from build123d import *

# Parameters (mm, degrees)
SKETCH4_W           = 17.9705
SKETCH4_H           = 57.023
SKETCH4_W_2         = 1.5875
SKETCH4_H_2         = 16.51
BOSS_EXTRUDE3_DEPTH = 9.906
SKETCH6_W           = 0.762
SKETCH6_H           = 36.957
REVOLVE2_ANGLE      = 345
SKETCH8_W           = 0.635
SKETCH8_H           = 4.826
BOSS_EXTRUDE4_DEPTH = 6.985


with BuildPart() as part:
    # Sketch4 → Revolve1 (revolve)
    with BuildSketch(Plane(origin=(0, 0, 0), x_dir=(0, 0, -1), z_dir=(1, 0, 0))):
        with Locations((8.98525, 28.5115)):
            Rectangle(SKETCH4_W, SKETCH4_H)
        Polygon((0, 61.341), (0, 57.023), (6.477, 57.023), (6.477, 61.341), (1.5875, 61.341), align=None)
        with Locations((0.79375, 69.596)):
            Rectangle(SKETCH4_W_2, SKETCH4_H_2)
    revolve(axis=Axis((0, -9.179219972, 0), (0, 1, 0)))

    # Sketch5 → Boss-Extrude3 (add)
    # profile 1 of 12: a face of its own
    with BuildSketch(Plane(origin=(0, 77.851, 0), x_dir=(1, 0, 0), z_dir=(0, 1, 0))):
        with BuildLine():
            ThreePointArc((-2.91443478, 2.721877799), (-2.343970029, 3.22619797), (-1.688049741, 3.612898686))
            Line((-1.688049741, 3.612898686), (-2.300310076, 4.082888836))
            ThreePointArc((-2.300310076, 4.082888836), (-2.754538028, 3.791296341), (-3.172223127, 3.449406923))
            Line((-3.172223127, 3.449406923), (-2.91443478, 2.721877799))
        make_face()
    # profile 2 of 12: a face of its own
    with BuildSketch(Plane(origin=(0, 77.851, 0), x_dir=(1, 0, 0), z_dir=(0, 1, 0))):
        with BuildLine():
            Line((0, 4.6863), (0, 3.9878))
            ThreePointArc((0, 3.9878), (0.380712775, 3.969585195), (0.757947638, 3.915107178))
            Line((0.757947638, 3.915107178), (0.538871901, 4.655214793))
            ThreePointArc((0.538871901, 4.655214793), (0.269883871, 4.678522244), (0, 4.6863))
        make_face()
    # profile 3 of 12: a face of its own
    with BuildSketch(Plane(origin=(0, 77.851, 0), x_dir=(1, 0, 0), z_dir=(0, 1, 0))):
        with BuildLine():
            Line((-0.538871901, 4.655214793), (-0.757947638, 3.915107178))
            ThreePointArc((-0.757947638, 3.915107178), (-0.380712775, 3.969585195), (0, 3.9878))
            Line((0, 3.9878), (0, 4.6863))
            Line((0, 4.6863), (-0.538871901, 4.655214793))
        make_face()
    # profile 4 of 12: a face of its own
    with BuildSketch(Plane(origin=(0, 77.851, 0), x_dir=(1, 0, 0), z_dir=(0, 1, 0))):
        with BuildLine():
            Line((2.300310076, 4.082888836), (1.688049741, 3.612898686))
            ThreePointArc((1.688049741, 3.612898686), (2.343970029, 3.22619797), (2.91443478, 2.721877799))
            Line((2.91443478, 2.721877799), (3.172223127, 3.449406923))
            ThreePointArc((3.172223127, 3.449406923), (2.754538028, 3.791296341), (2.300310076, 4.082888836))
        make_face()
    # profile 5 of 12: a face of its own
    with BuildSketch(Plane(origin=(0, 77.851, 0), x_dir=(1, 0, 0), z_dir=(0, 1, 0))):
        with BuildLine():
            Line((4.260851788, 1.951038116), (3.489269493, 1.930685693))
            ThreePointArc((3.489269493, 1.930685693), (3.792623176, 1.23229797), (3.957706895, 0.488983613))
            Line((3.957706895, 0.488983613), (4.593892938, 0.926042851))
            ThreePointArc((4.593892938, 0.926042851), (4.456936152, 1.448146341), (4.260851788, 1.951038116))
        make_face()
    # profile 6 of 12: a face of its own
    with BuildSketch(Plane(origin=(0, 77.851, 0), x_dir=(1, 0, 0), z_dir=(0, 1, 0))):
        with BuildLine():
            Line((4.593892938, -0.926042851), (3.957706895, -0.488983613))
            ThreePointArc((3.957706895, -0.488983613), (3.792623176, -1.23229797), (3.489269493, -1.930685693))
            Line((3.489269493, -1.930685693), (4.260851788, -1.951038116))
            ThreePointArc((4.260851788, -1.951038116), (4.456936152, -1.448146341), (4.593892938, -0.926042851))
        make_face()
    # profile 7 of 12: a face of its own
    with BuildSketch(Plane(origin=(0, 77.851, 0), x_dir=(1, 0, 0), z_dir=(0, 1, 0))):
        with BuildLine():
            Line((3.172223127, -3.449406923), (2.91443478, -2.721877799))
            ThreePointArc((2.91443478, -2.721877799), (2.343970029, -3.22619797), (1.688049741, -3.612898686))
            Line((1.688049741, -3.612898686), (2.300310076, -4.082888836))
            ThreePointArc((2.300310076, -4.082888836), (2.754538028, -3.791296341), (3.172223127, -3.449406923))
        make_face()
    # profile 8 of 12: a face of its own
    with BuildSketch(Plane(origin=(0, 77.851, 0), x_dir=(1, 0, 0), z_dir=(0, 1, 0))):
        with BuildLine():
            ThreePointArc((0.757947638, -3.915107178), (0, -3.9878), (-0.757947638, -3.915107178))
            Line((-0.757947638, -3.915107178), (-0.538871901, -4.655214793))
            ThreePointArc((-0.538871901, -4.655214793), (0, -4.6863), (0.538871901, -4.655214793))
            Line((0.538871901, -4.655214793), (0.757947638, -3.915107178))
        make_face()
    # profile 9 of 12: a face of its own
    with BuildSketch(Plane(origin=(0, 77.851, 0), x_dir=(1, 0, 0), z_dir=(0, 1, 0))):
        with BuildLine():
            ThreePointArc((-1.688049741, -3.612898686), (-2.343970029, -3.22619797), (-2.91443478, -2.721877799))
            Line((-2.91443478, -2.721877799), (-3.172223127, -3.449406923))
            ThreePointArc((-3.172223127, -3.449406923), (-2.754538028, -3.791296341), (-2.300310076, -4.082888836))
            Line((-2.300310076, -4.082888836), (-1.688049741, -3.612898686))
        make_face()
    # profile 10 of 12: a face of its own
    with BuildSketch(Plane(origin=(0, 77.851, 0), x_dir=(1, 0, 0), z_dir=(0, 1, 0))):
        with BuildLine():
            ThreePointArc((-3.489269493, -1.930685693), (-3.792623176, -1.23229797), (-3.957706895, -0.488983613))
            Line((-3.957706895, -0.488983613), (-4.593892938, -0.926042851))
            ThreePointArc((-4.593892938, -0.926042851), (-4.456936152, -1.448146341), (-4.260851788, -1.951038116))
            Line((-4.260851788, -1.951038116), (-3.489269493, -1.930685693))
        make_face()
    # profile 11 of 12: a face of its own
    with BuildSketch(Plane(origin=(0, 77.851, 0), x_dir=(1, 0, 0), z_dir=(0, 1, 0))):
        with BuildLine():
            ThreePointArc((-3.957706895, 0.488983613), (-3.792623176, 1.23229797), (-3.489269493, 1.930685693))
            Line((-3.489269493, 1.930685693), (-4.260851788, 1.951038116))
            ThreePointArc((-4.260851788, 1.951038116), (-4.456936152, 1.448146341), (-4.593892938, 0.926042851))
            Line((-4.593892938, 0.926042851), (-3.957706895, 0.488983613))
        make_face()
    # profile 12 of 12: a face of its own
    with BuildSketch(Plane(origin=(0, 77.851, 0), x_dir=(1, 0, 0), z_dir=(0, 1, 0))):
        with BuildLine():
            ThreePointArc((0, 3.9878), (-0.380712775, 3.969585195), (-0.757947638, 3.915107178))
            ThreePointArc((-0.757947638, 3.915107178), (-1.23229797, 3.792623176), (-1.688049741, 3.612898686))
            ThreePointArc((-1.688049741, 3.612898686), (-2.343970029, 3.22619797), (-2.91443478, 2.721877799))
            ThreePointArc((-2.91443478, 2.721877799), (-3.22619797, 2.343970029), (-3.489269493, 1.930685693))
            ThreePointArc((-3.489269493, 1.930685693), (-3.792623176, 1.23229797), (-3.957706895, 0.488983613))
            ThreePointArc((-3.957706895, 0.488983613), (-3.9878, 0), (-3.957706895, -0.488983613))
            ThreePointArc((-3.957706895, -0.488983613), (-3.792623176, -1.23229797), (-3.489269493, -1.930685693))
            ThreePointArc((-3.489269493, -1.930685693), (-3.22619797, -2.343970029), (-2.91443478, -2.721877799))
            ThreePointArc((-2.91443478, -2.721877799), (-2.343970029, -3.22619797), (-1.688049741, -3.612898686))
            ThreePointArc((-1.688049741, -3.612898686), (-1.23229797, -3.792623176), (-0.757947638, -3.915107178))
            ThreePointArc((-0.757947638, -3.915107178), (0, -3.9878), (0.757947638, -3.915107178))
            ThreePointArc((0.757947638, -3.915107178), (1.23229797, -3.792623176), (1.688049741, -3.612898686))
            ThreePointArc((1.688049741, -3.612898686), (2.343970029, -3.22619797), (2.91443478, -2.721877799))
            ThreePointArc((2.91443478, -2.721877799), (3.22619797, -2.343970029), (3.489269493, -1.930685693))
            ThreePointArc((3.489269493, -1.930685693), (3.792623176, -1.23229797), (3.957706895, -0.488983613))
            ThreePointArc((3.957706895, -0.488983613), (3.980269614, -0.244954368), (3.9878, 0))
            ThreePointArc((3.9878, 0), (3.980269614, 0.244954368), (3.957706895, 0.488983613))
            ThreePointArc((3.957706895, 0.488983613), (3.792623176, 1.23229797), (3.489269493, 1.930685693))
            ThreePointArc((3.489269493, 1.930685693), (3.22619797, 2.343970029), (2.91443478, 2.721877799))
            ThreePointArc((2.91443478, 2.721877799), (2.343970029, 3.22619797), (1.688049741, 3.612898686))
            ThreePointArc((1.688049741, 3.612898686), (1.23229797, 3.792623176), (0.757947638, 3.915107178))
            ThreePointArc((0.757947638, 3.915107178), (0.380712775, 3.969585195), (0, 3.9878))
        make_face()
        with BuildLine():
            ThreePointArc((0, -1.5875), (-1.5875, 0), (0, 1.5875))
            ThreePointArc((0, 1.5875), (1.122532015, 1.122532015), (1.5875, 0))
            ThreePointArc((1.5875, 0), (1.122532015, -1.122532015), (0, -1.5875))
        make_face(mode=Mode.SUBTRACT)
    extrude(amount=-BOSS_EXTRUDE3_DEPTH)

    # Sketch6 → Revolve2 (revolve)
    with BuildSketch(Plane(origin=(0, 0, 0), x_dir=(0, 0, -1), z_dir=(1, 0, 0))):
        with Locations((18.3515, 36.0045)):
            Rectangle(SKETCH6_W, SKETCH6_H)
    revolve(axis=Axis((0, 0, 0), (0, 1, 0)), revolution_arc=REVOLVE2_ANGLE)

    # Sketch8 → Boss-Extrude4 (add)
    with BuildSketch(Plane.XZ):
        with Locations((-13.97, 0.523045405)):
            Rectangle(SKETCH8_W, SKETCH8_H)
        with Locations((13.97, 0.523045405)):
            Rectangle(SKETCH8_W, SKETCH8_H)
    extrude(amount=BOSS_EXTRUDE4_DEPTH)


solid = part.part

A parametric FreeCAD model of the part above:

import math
import FreeCAD as App
import Part
import Sketcher
from FreeCAD import Vector
Q = App.Units.Quantity

doc = App.newDocument("Part")
body = doc.addObject("PartDesign::Body", "Body")

# Sketch on YZ plane
sketch1 = doc.addObject("Sketcher::SketchObject", "Sketch")
body.addObject(sketch1)
sketch1.AttachmentSupport = (doc.YZ_Plane, [""])
sketch1.MapMode = "FlatFace"
sketch1.addGeometry([
    Part.LineSegment(Vector(0, 0, 0), Vector(0, -18, 0)),  # 0
    Part.LineSegment(Vector(0, -18, 0), Vector(57, -18, 0)),  # 1
    Part.LineSegment(Vector(57, -18, 0), Vector(57, -6.5, 0)),  # 2
    Part.LineSegment(Vector(57, -6.5, 0), Vector(61.3, -6.5, 0)),  # 3
    Part.LineSegment(Vector(61.3, -6.5, 0), Vector(61.3, -1.6, 0)),  # 4
    Part.LineSegment(Vector(61.3, -1.6, 0), Vector(77.9, -1.6, 0)),  # 5
    Part.LineSegment(Vector(77.9, -1.6, 0), Vector(77.9, 0, 0)),  # 6
    Part.LineSegment(Vector(77.9, 0, 0), Vector(0, 0, 0)),  # 7
], False)
sketch1.addConstraint([
    Sketcher.Constraint("Coincident", 0, 2, 1, 1),
    Sketcher.Constraint("Coincident", 1, 2, 2, 1),
    Sketcher.Constraint("Coincident", 2, 2, 3, 1),
    Sketcher.Constraint("Coincident", 3, 2, 4, 1),
    Sketcher.Constraint("Coincident", 4, 2, 5, 1),
    Sketcher.Constraint("Coincident", 5, 2, 6, 1),
    Sketcher.Constraint("Coincident", 6, 2, 7, 1),
    Sketcher.Constraint("Coincident", 7, 2, 0, 1),
    Sketcher.Constraint("Vertical", 0),
    Sketcher.Constraint("Horizontal", 1),
    Sketcher.Constraint("Vertical", 2),
    Sketcher.Constraint("Horizontal", 3),
    Sketcher.Constraint("Vertical", 4),
    Sketcher.Constraint("Horizontal", 5),
    Sketcher.Constraint("Vertical", 6),
    Sketcher.Constraint("Horizontal", 7),
    Sketcher.Constraint("Coincident", 7, 2, -1, 1),
    Sketcher.Constraint("DistanceX", 3, 1, 3, 2, Q("0.17 in")),
    Sketcher.Constraint("DistanceX", 5, 1, 5, 2, Q("0.65 in")),
    Sketcher.Constraint("DistanceX", 1, 1, 1, 2, Q("2.245 in")),
    Sketcher.Constraint("DistanceY", 6, 1, 6, 2, Q("0.0625 in")),
    Sketcher.Constraint("DistanceY", 0, 2, 0, 1, Q("0.7075 in")),
    Sketcher.Constraint("DistanceY", 2, 1, 2, 2, Q("0.4525 in")),
])
revolution = doc.addObject("PartDesign::Revolution", "Revolution")
body.addObject(revolution)
revolution.Profile = sketch1
revolution.ReferenceAxis = (sketch1, ["H_Axis"])
revolution.Angle = 360

# Sketch on XZ plane
sketch2 = doc.addObject("Sketcher::SketchObject", "Sketch001")
body.addObject(sketch2)
sketch2.AttachmentSupport = (doc.XZ_Plane, [""])
sketch2.MapMode = "FlatFace"
sketch2.AttachmentOffset = App.Placement(Vector(0, 0, -3.065 * 25.4), App.Rotation())
sketch2.addGeometry([
    Part.LineSegment(Vector(-1.69, -3.61, 0), Vector(-2.3, -4.08, 0)),  # 0
    Part.ArcOfCircle(Part.Circle(Vector(0, 0, 0), Vector(0, 0, 1), 4.69), math.radians(-132.6), math.radians(-119.4)),  # 1
    Part.LineSegment(Vector(-3.17, -3.45, 0), Vector(-2.91, -2.72, 0)),  # 2
    Part.ArcOfCircle(Part.Circle(Vector(0, 0, 0), Vector(0, 0, 1), 3.99), math.radians(-151.04), math.radians(-136.96)),  # 3
    Part.LineSegment(Vector(-3.49, -1.93, 0), Vector(-4.26, -1.95, 0)),  # 4
    Part.ArcOfCircle(Part.Circle(Vector(0, 0, 0), Vector(0, 0, 1), 4.69), math.radians(-168.6), math.radians(-155.4)),  # 5
    Part.LineSegment(Vector(-4.59, -0.93, 0), Vector(-3.96, -0.49, 0)),  # 6
    Part.ArcOfCircle(Part.Circle(Vector(0, 0, 0), Vector(0, 0, 1), 3.99), math.radians(172.96), math.radians(187.04)),  # 7
    Part.LineSegment(Vector(-3.96, 0.49, 0), Vector(-4.59, 0.93, 0)),  # 8
    Part.ArcOfCircle(Part.Circle(Vector(0, 0, 0), Vector(0, 0, 1), 4.69), math.radians(155.4), math.radians(168.6)),  # 9
    Part.LineSegment(Vector(-4.26, 1.95, 0), Vector(-3.49, 1.93, 0)),  # 10
    Part.ArcOfCircle(Part.Circle(Vector(0, 0, 0), Vector(0, 0, 1), 3.99), math.radians(136.96), math.radians(151.04)),  # 11
    Part.LineSegment(Vector(-2.91, 2.72, 0), Vector(-3.17, 3.45, 0)),  # 12
    Part.ArcOfCircle(Part.Circle(Vector(0, 0, 0), Vector(0, 0, 1), 4.69), math.radians(119.4), math.radians(132.6)),  # 13
    Part.LineSegment(Vector(-2.3, 4.08, 0), Vector(-1.69, 3.61, 0)),  # 14
    Part.ArcOfCircle(Part.Circle(Vector(0, 0, 0), Vector(0, 0, 1), 3.99), math.radians(100.96), math.radians(115.04)),  # 15
    Part.LineSegment(Vector(-0.76, 3.92, 0), Vector(-0.54, 4.66, 0)),  # 16
    Part.ArcOfCircle(Part.Circle(Vector(0, 0, 0), Vector(0, 0, 1), 4.69), math.radians(83.4), math.radians(96.6)),  # 17
    Part.LineSegment(Vector(0.54, 4.66, 0), Vector(0.76, 3.92, 0)),  # 18
    Part.ArcOfCircle(Part.Circle(Vector(0, 0, 0), Vector(0, 0, 1), 3.99), math.radians(64.96), math.radians(79.04)),  # 19
    Part.LineSegment(Vector(1.69, 3.61, 0), Vector(2.3, 4.08, 0)),  # 20
    Part.ArcOfCircle(Part.Circle(Vector(0, 0, 0), Vector(0, 0, 1), 4.69), math.radians(47.4), math.radians(60.6)),  # 21
    Part.LineSegment(Vector(3.17, 3.45, 0), Vector(2.91, 2.72, 0)),  # 22
    Part.ArcOfCircle(Part.Circle(Vector(0, 0, 0), Vector(0, 0, 1), 3.99), math.radians(28.96), math.radians(43.04)),  # 23
    Part.LineSegment(Vector(3.49, 1.93, 0), Vector(4.26, 1.95, 0)),  # 24
    Part.ArcOfCircle(Part.Circle(Vector(0, 0, 0), Vector(0, 0, 1), 4.69), math.radians(11.4), math.radians(24.6)),  # 25
    Part.LineSegment(Vector(4.59, 0.93, 0), Vector(3.96, 0.49, 0)),  # 26
    Part.ArcOfCircle(Part.Circle(Vector(0, 0, 0), Vector(0, 0, 1), 3.99), math.radians(0), math.radians(7.04)),  # 27
    Part.ArcOfCircle(Part.Circle(Vector(0, 0, 0), Vector(0, 0, 1), 3.99), math.radians(-7.04), math.radians(0)),  # 28
    Part.LineSegment(Vector(3.96, -0.49, 0), Vector(4.59, -0.93, 0)),  # 29
    Part.ArcOfCircle(Part.Circle(Vector(0, 0, 0), Vector(0, 0, 1), 4.69), math.radians(-24.6), math.radians(-11.4)),  # 30
    Part.LineSegment(Vector(4.26, -1.95, 0), Vector(3.49, -1.93, 0)),  # 31
    Part.ArcOfCircle(Part.Circle(Vector(0, 0, 0), Vector(0, 0, 1), 3.99), math.radians(-43.04), math.radians(-28.96)),  # 32
    Part.LineSegment(Vector(2.91, -2.72, 0), Vector(3.17, -3.45, 0)),  # 33
    Part.ArcOfCircle(Part.Circle(Vector(0, 0, 0), Vector(0, 0, 1), 4.69), math.radians(-60.6), math.radians(-47.4)),  # 34
    Part.LineSegment(Vector(2.3, -4.08, 0), Vector(1.69, -3.61, 0)),  # 35
    Part.ArcOfCircle(Part.Circle(Vector(0, 0, 0), Vector(0, 0, 1), 3.99), math.radians(-79.04), math.radians(-64.96)),  # 36
    Part.LineSegment(Vector(0.76, -3.92, 0), Vector(0.54, -4.66, 0)),  # 37
    Part.ArcOfCircle(Part.Circle(Vector(0, 0, 0), Vector(0, 0, 1), 4.69), math.radians(-90), math.radians(-83.4)),  # 38
    Part.LineSegment(Vector(0, -4.69, 0), Vector(-0.54, -4.66, 0)),  # 39
    Part.LineSegment(Vector(-0.54, -4.66, 0), Vector(-0.76, -3.92, 0)),  # 40
    Part.ArcOfCircle(Part.Circle(Vector(0, 0, 0), Vector(0, 0, 1), 3.99), math.radians(-115.04), math.radians(-100.96)),  # 41
    Part.ArcOfCircle(Part.Circle(Vector(0, 0, 0), Vector(0, 0, 1), 1.59), math.radians(90), math.radians(270)),  # 42
    Part.ArcOfCircle(Part.Circle(Vector(0, 0, 0), Vector(0, 0, 1), 1.59), math.radians(-90), math.radians(0)),  # 43
    Part.ArcOfCircle(Part.Circle(Vector(0, 0, 0), Vector(0, 0, 1), 1.59), math.radians(0), math.radians(90)),  # 44
], False)
sketch2.addConstraint([
    Sketcher.Constraint("Coincident", 0, 2, 1, 2),
    Sketcher.Constraint("Coincident", 1, 1, 2, 1),
    Sketcher.Constraint("Coincident", 2, 2, 3, 2),
    Sketcher.Constraint("Coincident", 3, 1, 4, 1),
    Sketcher.Constraint("Coincident", 4, 2, 5, 2),
    Sketcher.Constraint("Coincident", 5, 1, 6, 1),
    Sketcher.Constraint("Coincident", 6, 2, 7, 2),
    Sketcher.Constraint("Coincident", 7, 1, 8, 1),
    Sketcher.Constraint("Coincident", 8, 2, 9, 2),
    Sketcher.Constraint("Coincident", 9, 1, 10, 1),
    Sketcher.Constraint("Coincident", 10, 2, 11, 2),
    Sketcher.Constraint("Coincident", 11, 1, 12, 1),
    Sketcher.Constraint("Coincident", 12, 2, 13, 2),
    Sketcher.Constraint("Coincident", 13, 1, 14, 1),
    Sketcher.Constraint("Coincident", 14, 2, 15, 2),
    Sketcher.Constraint("Coincident", 15, 1, 16, 1),
    Sketcher.Constraint("Coincident", 16, 2, 17, 2),
    Sketcher.Constraint("Coincident", 17, 1, 18, 1),
    Sketcher.Constraint("Coincident", 18, 2, 19, 2),
    Sketcher.Constraint("Coincident", 19, 1, 20, 1),
    Sketcher.Constraint("Coincident", 20, 2, 21, 2),
    Sketcher.Constraint("Coincident", 21, 1, 22, 1),
    Sketcher.Constraint("Coincident", 22, 2, 23, 2),
    Sketcher.Constraint("Coincident", 23, 1, 24, 1),
    Sketcher.Constraint("Coincident", 24, 2, 25, 2),
    Sketcher.Constraint("Coincident", 25, 1, 26, 1),
    Sketcher.Constraint("Coincident", 26, 2, 27, 2),
    Sketcher.Constraint("Tangent", 27, 1, 28, 2),
    Sketcher.Constraint("Coincident", 28, 1, 29, 1),
    Sketcher.Constraint("Coincident", 29, 2, 30, 2),
    Sketcher.Constraint("Coincident", 30, 1, 31, 1),
    Sketcher.Constraint("Coincident", 31, 2, 32, 2),
    Sketcher.Constraint("Coincident", 32, 1, 33, 1),
    Sketcher.Constraint("Coincident", 33, 2, 34, 2),
    Sketcher.Constraint("Coincident", 34, 1, 35, 1),
    Sketcher.Constraint("Coincident", 35, 2, 36, 2),
    Sketcher.Constraint("Coincident", 36, 1, 37, 1),
    Sketcher.Constraint("Coincident", 37, 2, 38, 2),
    Sketcher.Constraint("Coincident", 38, 1, 39, 1),
    Sketcher.Constraint("Coincident", 39, 2, 40, 1),
    Sketcher.Constraint("Coincident", 40, 2, 41, 2),
    Sketcher.Constraint("Coincident", 41, 1, 0, 1),
    Sketcher.Constraint("Tangent", 42, 2, 43, 1),
    Sketcher.Constraint("Tangent", 43, 2, 44, 1),
    Sketcher.Constraint("Tangent", 44, 2, 42, 1),
    Sketcher.Constraint("Coincident", 1, 3, -1, 1),
    Sketcher.Constraint("Coincident", 3, 3, -1, 1),
    Sketcher.Constraint("Coincident", 5, 3, -1, 1),
    Sketcher.Constraint("Coincident", 7, 3, -1, 1),
    Sketcher.Constraint("Coincident", 9, 3, -1, 1),
    Sketcher.Constraint("Coincident", 11, 3, -1, 1),
    Sketcher.Constraint("Coincident", 13, 3, -1, 1),
    Sketcher.Constraint("Coincident", 15, 3, -1, 1),
    Sketcher.Constraint("Coincident", 17, 3, -1, 1),
    Sketcher.Constraint("Coincident", 19, 3, -1, 1),
    Sketcher.Constraint("Coincident", 21, 3, -1, 1),
    Sketcher.Constraint("Coincident", 23, 3, -1, 1),
    Sketcher.Constraint("Coincident", 25, 3, -1, 1),
    Sketcher.Constraint("Coincident", 27, 3, -1, 1),
    Sketcher.Constraint("Coincident", 30, 3, -1, 1),
    Sketcher.Constraint("Coincident", 32, 3, -1, 1),
    Sketcher.Constraint("Coincident", 34, 3, -1, 1),
    Sketcher.Constraint("Coincident", 36, 3, -1, 1),
    Sketcher.Constraint("Coincident", 38, 3, -1, 1),
    Sketcher.Constraint("Coincident", 41, 3, -1, 1),
    Sketcher.Constraint("Coincident", 42, 3, -1, 1),
    Sketcher.Constraint("Equal", 1, 5),
    Sketcher.Constraint("Equal", 3, 7),
    Sketcher.Constraint("Equal", 5, 9),
    Sketcher.Constraint("Equal", 7, 11),
    Sketcher.Constraint("Equal", 9, 13),
    Sketcher.Constraint("Equal", 11, 15),
    Sketcher.Constraint("Equal", 13, 17),
    Sketcher.Constraint("Equal", 15, 19),
    Sketcher.Constraint("Equal", 17, 21),
    Sketcher.Constraint("Equal", 19, 23),
    Sketcher.Constraint("Equal", 21, 25),
    Sketcher.Constraint("Equal", 23, 27),
    Sketcher.Constraint("Equal", 27, 28),
    Sketcher.Constraint("Equal", 25, 30),
    Sketcher.Constraint("Equal", 28, 32),
    Sketcher.Constraint("Equal", 30, 34),
    Sketcher.Constraint("Equal", 32, 36),
    Sketcher.Constraint("Equal", 34, 38),
    Sketcher.Constraint("Equal", 36, 41),
    Sketcher.Constraint("Symmetric", 17, 1, 39, 2, -1, 1),
    Sketcher.Constraint("PointOnObject", 27, 1, -1),
    Sketcher.Constraint("PointOnObject", 38, 1, -2),
    Sketcher.Constraint("PointOnObject", 42, 2, -2),
    Sketcher.Constraint("PointOnObject", 43, 2, -1),
    Sketcher.Constraint("PointOnObject", 44, 2, -2),
    Sketcher.Constraint("Parallel", 0, 20),
    Sketcher.Constraint("Parallel", 2, 22),
    Sketcher.Constraint("Parallel", 4, 24),
    Sketcher.Constraint("Parallel", 6, 26),
    Sketcher.Constraint("Parallel", 8, 29),
    Sketcher.Constraint("Parallel", 10, 31),
    Sketcher.Constraint("Parallel", 12, 33),
    Sketcher.Constraint("Parallel", 14, 35),
    Sketcher.Constraint("Parallel", 16, 37),
    Sketcher.Constraint("Parallel", 18, 40),
    Sketcher.Constraint("Horizontal", 16, 2, 17, 1),
    Sketcher.Constraint("Horizontal", 15, 1, 18, 2),
    Sketcher.Constraint("Horizontal", 14, 2, 19, 1),
    Sketcher.Constraint("Horizontal", 13, 1, 20, 2),
    Sketcher.Constraint("Horizontal", 12, 2, 21, 1),
    Sketcher.Constraint("Horizontal", 11, 1, 22, 2),
    Sketcher.Constraint("Horizontal", 10, 2, 23, 1),
    Sketcher.Constraint("Horizontal", 9, 1, 24, 2),
    Sketcher.Constraint("Horizontal", 8, 2, 25, 1),
    Sketcher.Constraint("Horizontal", 7, 1, 26, 2),
    Sketcher.Constraint("Horizontal", 6, 2, 28, 1),
    Sketcher.Constraint("Horizontal", 4, 2, 30, 1),
    Sketcher.Constraint("Horizontal", 2, 2, 32, 1),
    Sketcher.Constraint("Horizontal", 0, 2, 34, 1),
    Sketcher.Constraint("Horizontal", 37, 2, 39, 2),
    Sketcher.Constraint("Vertical", 6, 2, 7, 1),
    Sketcher.Constraint("Vertical", 4, 2, 9, 1),
    Sketcher.Constraint("Vertical", 2, 2, 11, 1),
    Sketcher.Constraint("Vertical", 0, 2, 13, 1),
    Sketcher.Constraint("Equal", 0, 2),
    Sketcher.Constraint("Equal", 2, 4),
    Sketcher.Constraint("Equal", 4, 6),
    Sketcher.Constraint("Equal", 14, 16),
    Sketcher.Constraint("Radius", 3, Q("0.157 in")),
    Sketcher.Constraint("Radius", 42, Q("0.0625 in")),
    Sketcher.Constraint("Radius", 1, Q("0.1845 in")),
    Sketcher.Constraint("DistanceY", -1, 1, 14, 2, 3.612899),
    Sketcher.Constraint("Distance", 0, 0.771851),
    Sketcher.Constraint("DistanceX", 3, 1, -1, 1, 3.489269),
    Sketcher.Constraint("DistanceX", 16, 2, -1, 1, 0.538872),
    Sketcher.Constraint("DistanceX", 1, 1, -1, 1, 3.172223),
    Sketcher.Constraint("DistanceX", 5, 1, -1, 1, 4.593893),
])
pad1 = doc.addObject("PartDesign::Pad", "Pad")
body.addObject(pad1)
pad1.Profile = sketch2
pad1.Length = Q("0.39 in")

# Sketch on YZ plane
sketch3 = doc.addObject("Sketcher::SketchObject", "Sketch002")
body.addObject(sketch3)
sketch3.AttachmentSupport = (doc.YZ_Plane, [""])
sketch3.MapMode = "FlatFace"
sketch3.addGeometry([
    Part.LineSegment(Vector(54.5, -18, 0), Vector(17.5, -18, 0)),
    Part.LineSegment(Vector(17.5, -18, 0), Vector(17.5, -18.7, 0)),
    Part.LineSegment(Vector(17.5, -18.7, 0), Vector(54.5, -18.7, 0)),
    Part.LineSegment(Vector(54.5, -18.7, 0), Vector(54.5, -18, 0)),
], False)
sketch3.addConstraint([
    Sketcher.Constraint("Coincident", 0, 2, 1, 1),
    Sketcher.Constraint("Coincident", 1, 2, 2, 1),
    Sketcher.Constraint("Coincident", 2, 2, 3, 1),
    Sketcher.Constraint("Coincident", 3, 2, 0, 1),
    Sketcher.Constraint("Horizontal", 0),
    Sketcher.Constraint("Vertical", 1),
    Sketcher.Constraint("Horizontal", 2),
    Sketcher.Constraint("Vertical", 3),
    Sketcher.Constraint("DistanceY", 1, 2, 1, 1, Q("0.03 in")),
    Sketcher.Constraint("DistanceX", 0, 2, 0, 1, Q("1.455 in")),
    Sketcher.Constraint("DistanceX", -1, 1, 0, 2, Q("0.69 in")),
    Sketcher.Constraint("DistanceY", 0, 2, -1, 1, Q("0.7075 in")),
])
revolution2 = doc.addObject("PartDesign::Revolution", "Revolution001")
body.addObject(revolution2)
revolution2.Profile = sketch3
revolution2.ReferenceAxis = (sketch3, ["H_Axis"])
revolution2.Angle = 345

# Sketch on XZ plane
sketch4 = doc.addObject("Sketcher::SketchObject", "Sketch003")
body.addObject(sketch4)
sketch4.AttachmentSupport = (doc.XZ_Plane, [""])
sketch4.MapMode = "FlatFace"
sketch4.addGeometry([
    Part.LineSegment(Vector(-14.3, 2.9, 0), Vector(-14.3, -1.9, 0)),  # 0
    Part.LineSegment(Vector(-14.3, -1.9, 0), Vector(-13.7, -1.9, 0)),  # 1
    Part.LineSegment(Vector(-13.7, -1.9, 0), Vector(-13.7, 2.9, 0)),  # 2
    Part.LineSegment(Vector(-13.7, 2.9, 0), Vector(-14.3, 2.9, 0)),  # 3
    Part.LineSegment(Vector(13.7, 2.9, 0), Vector(13.7, -1.9, 0)),  # 4
    Part.LineSegment(Vector(13.7, -1.9, 0), Vector(14.3, -1.9, 0)),  # 5
    Part.LineSegment(Vector(14.3, -1.9, 0), Vector(14.3, 2.9, 0)),  # 6
    Part.LineSegment(Vector(14.3, 2.9, 0), Vector(13.7, 2.9, 0)),  # 7
], False)
sketch4.addConstraint([
    Sketcher.Constraint("Coincident", 0, 2, 1, 1),
    Sketcher.Constraint("Coincident", 1, 2, 2, 1),
    Sketcher.Constraint("Coincident", 2, 2, 3, 1),
    Sketcher.Constraint("Coincident", 3, 2, 0, 1),
    Sketcher.Constraint("Coincident", 4, 2, 5, 1),
    Sketcher.Constraint("Coincident", 5, 2, 6, 1),
    Sketcher.Constraint("Coincident", 6, 2, 7, 1),
    Sketcher.Constraint("Coincident", 7, 2, 4, 1),
    Sketcher.Constraint("Vertical", 0),
    Sketcher.Constraint("Horizontal", 1),
    Sketcher.Constraint("Vertical", 2),
    Sketcher.Constraint("Horizontal", 3),
    Sketcher.Constraint("Vertical", 4),
    Sketcher.Constraint("Horizontal", 5),
    Sketcher.Constraint("Vertical", 6),
    Sketcher.Constraint("Horizontal", 7),
    Sketcher.Constraint("Symmetric", 1, 2, 4, 2, -2),
    Sketcher.Constraint("Symmetric", 3, 2, 6, 2, -2),
    Sketcher.Constraint("DistanceY", 0, 2, 0, 1, Q("0.19 in")),
    Sketcher.Constraint("DistanceX", 0, 2, 4, 2, Q("1.1 in")),
    Sketcher.Constraint("DistanceX", 1, 1, 1, 2, Q("0.025 in")),
    Sketcher.Constraint("DistanceY", 0, 2, -1, 1, 1.889955),
])
pad2 = doc.addObject("PartDesign::Pad", "Pad001")
body.addObject(pad2)
pad2.Profile = sketch4
pad2.Length = Q("0.275 in")

doc.recompute()
